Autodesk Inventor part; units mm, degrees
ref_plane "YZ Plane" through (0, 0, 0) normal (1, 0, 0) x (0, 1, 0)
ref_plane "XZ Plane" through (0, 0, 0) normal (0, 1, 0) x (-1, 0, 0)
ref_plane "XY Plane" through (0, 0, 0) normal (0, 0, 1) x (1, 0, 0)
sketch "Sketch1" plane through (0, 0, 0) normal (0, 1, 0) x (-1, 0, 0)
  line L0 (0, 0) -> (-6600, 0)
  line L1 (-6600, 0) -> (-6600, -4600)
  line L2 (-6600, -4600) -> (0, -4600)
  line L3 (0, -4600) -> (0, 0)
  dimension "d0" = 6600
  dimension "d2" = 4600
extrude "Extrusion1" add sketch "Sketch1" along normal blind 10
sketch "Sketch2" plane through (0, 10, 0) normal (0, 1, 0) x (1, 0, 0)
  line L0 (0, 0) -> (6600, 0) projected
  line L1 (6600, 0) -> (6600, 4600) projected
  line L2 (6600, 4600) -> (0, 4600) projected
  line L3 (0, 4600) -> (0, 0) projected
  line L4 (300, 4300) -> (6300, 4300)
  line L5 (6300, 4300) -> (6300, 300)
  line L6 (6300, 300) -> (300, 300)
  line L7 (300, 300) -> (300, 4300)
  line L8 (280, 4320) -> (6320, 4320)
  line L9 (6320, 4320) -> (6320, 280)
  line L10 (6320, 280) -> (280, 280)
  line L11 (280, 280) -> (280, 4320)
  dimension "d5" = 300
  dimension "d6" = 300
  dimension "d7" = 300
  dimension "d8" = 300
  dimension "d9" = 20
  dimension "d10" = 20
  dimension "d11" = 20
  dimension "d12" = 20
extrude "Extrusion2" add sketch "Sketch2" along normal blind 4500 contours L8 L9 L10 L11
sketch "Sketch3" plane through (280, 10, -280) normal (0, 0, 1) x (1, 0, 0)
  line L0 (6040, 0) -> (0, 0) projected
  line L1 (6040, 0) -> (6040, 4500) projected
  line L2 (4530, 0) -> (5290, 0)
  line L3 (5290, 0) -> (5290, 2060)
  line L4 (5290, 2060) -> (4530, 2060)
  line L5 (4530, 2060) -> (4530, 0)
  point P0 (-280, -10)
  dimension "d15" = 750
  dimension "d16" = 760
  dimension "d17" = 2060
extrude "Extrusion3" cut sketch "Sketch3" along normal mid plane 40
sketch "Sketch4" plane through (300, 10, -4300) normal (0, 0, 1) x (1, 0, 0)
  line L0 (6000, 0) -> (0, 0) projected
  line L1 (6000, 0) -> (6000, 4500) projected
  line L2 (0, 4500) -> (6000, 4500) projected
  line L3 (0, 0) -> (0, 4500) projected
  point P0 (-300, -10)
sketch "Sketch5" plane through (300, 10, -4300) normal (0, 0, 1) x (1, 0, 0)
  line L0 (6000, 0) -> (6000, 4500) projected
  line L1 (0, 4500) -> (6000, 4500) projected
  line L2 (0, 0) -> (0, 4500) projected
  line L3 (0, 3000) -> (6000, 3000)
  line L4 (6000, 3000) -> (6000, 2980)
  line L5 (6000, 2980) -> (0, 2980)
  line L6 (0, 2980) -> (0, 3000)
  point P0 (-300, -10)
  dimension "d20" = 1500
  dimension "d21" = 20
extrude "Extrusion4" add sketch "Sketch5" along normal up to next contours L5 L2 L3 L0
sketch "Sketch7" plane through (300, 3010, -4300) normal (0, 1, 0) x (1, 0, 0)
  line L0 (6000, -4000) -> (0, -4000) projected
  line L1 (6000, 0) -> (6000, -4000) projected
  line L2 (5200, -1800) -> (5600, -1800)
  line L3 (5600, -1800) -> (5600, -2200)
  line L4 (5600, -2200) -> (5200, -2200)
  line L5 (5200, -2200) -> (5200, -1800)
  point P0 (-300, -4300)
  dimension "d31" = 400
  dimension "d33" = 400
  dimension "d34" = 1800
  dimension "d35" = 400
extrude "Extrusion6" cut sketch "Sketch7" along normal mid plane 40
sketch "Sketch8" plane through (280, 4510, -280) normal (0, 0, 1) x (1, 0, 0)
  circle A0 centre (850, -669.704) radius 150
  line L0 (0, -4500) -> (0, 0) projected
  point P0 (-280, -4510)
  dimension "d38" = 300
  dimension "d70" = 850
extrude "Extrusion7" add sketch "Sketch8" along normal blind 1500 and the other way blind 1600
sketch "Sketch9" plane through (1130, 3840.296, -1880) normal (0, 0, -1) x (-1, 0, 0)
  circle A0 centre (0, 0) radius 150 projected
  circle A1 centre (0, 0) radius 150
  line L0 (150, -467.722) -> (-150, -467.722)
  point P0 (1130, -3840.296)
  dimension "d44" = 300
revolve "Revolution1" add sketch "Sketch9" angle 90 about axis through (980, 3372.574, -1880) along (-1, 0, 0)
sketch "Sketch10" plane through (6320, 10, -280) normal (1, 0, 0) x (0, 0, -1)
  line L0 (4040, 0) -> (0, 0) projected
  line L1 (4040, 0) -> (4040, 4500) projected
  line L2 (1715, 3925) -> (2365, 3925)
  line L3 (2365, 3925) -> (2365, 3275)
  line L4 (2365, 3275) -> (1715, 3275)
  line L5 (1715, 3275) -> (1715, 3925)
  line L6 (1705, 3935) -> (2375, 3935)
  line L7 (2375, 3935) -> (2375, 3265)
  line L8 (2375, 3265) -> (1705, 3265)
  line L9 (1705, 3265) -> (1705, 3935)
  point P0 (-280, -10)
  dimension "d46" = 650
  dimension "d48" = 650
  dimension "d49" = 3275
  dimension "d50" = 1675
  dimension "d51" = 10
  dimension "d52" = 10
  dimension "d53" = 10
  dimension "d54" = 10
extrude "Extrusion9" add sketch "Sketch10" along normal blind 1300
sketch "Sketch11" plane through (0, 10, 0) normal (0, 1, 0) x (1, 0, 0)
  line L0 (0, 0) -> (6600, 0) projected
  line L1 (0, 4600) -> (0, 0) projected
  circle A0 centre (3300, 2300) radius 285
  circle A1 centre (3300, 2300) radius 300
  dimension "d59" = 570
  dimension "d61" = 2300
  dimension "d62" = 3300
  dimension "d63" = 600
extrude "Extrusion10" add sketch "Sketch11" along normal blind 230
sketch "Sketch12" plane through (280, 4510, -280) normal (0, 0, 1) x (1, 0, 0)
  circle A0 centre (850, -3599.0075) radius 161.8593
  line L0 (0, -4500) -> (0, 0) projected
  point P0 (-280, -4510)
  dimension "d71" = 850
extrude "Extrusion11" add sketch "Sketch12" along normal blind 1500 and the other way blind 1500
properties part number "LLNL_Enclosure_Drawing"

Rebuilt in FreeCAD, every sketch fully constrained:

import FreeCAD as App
import Part
import Sketcher

V = App.Vector
Q = App.Units.Quantity


def add_polygon(sketch, points):
    """Adds a closed chain of lines whose ends are joined by coincident constraints."""
    first, n = sketch.GeometryCount, len(points)
    for a, b in zip(points, points[1:] + points[:1]):
        sketch.addGeometry(Part.LineSegment(App.Vector(*a, 0), App.Vector(*b, 0)), False)
    for i in range(n):
        sketch.addConstraint(Sketcher.Constraint("Coincident", first + i, 2, first + (i + 1) % n, 1))

doc = App.newDocument("Part")
body = doc.addObject("PartDesign::Body", "Body")

# Sketch on XZ plane
sketch1 = body.newObject("Sketcher::SketchObject", "Sketch")
sketch1.AttachmentSupport = (doc.getObject("XZ_Plane"), [""])
sketch1.MapMode = "FlatFace"
add_polygon(sketch1, [(0, -4600), (0, 0), (6600, 0), (6600, -4600)])  # lines 0-3
sketch1.addConstraint([
    Sketcher.Constraint("Vertical", 0),
    Sketcher.Constraint("Horizontal", 1),
    Sketcher.Constraint("Vertical", 2),
    Sketcher.Constraint("Horizontal", 3),
    Sketcher.Constraint("Coincident", 0, 2, -1, 1),
    Sketcher.Constraint("DistanceX", 1, 1, 1, 2, Q("6600 mm")),
    Sketcher.Constraint("DistanceY", 0, 1, 0, 2, Q("4600 mm")),
])
pad1 = body.newObject("PartDesign::Pad", "Pad")
pad1.Profile = sketch1
pad1.Length = 10
pad1.Reversed = True

# Sketch on XZ plane
sketch2 = body.newObject("Sketcher::SketchObject", "Sketch001")
sketch2.AttachmentSupport = (doc.getObject("XZ_Plane"), [""])
sketch2.MapMode = "FlatFace"
sketch2.AttachmentOffset = App.Placement(V(0, 0, -10), App.Rotation())
add_polygon(sketch2, [(6320, -4320), (280, -4320), (280, -280), (6320, -280)])  # lines 0-3
add_polygon(sketch2, [(300, -300), (300, -4300), (6300, -4300), (6300, -300)])  # lines 4-7
sketch2.addConstraint([
    Sketcher.Constraint("Horizontal", 0),
    Sketcher.Constraint("Vertical", 1),
    Sketcher.Constraint("Horizontal", 2),
    Sketcher.Constraint("Vertical", 3),
    Sketcher.Constraint("Vertical", 4),
    Sketcher.Constraint("Horizontal", 5),
    Sketcher.Constraint("Vertical", 6),
    Sketcher.Constraint("Horizontal", 7),
    Sketcher.Constraint("DistanceX", -1, 1, 4, 2, Q("300 mm")),
    Sketcher.Constraint("DistanceY", 6, 2, -1, 1, Q("300 mm")),
    Sketcher.Constraint("DistanceX", 0, 2, 4, 2, Q("20 mm")),
    Sketcher.Constraint("DistanceY", 0, 2, 4, 2, Q("20 mm")),
    Sketcher.Constraint("DistanceX", 5, 2, 3, 2, Q("20 mm")),
    Sketcher.Constraint("DistanceY", 6, 2, 2, 2, Q("20 mm")),
    Sketcher.Constraint("DistanceX", 0, 2, 0, 1, Q("6040 mm")),
    Sketcher.Constraint("DistanceY", 1, 1, 1, 2, Q("4040 mm")),
])
pad2 = body.newObject("PartDesign::Pad", "Pad001")
pad2.Profile = sketch2
pad2.Length = 4500
pad2.Reversed = True

# Sketch on XY plane
sketch3 = body.newObject("Sketcher::SketchObject", "Sketch002")
sketch3.AttachmentSupport = (doc.getObject("XY_Plane"), [""])
sketch3.MapMode = "FlatFace"
sketch3.AttachmentOffset = App.Placement(V(0, 0, -280), App.Rotation())
add_polygon(sketch3, [(4810, 10), (5570, 10), (5570, 2070), (4810, 2070)])  # lines 0-3
sketch3.addConstraint([
    Sketcher.Constraint("Horizontal", 0),
    Sketcher.Constraint("Vertical", 1),
    Sketcher.Constraint("Horizontal", 2),
    Sketcher.Constraint("Vertical", 3),
    Sketcher.Constraint("DistanceX", 0, 1, 0, 2, Q("760 mm")),
    Sketcher.Constraint("DistanceY", 1, 1, 1, 2, Q("2060 mm")),
    Sketcher.Constraint("DistanceX", -1, 1, 0, 2, Q("5570 mm")),
    Sketcher.Constraint("DistanceY", -1, 1, 0, 2, Q("10 mm")),
])
pocket1 = body.newObject("PartDesign::Pocket", "Pocket")
pocket1.Profile = sketch3
pocket1.Length = 40
pocket1.Midplane = True

# Sketch on XY plane
sketch4 = body.newObject("Sketcher::SketchObject", "Sketch003")
sketch4.AttachmentSupport = (doc.getObject("XY_Plane"), [""])
sketch4.MapMode = "FlatFace"
sketch4.AttachmentOffset = App.Placement(V(0, 0, -4300), App.Rotation())
add_polygon(sketch4, [(300, 2990), (6300, 2990), (6300, 3010), (300, 3010)])  # lines 0-3
sketch4.addConstraint([
    Sketcher.Constraint("Horizontal", 0),
    Sketcher.Constraint("Vertical", 1),
    Sketcher.Constraint("Horizontal", 2),
    Sketcher.Constraint("Vertical", 3),
    Sketcher.Constraint("DistanceY", 1, 1, 1, 2, Q("20 mm")),
    Sketcher.Constraint("DistanceX", 0, 1, 0, 2, Q("6000 mm")),
    Sketcher.Constraint("DistanceX", -1, 1, 0, 2, Q("6300 mm")),
    Sketcher.Constraint("DistanceY", -1, 1, 0, 2, Q("2990 mm")),
])
pad3 = body.newObject("PartDesign::Pad", "Pad002")
pad3.Profile = sketch4
pad3.Type = "UpToFirst"

# Sketch on XZ plane
sketch5 = body.newObject("Sketcher::SketchObject", "Sketch004")
sketch5.AttachmentSupport = (doc.getObject("XZ_Plane"), [""])
sketch5.MapMode = "FlatFace"
sketch5.AttachmentOffset = App.Placement(V(0, 0, -3010), App.Rotation())
add_polygon(sketch5, [(5900, -2500), (5500, -2500), (5500, -2100), (5900, -2100)])  # lines 0-3
sketch5.addConstraint([
    Sketcher.Constraint("Horizontal", 0),
    Sketcher.Constraint("Vertical", 1),
    Sketcher.Constraint("Horizontal", 2),
    Sketcher.Constraint("Vertical", 3),
    Sketcher.Constraint("Equal", 2, 1),
    Sketcher.Constraint("DistanceX", 0, 2, 0, 1, Q("400 mm")),
    Sketcher.Constraint("DistanceX", -1, 1, 0, 2, Q("5500 mm")),
    Sketcher.Constraint("DistanceY", 0, 2, -1, 1, Q("2500 mm")),
])
pocket2 = body.newObject("PartDesign::Pocket", "Pocket001")
pocket2.Profile = sketch5
pocket2.Length = 40
pocket2.Midplane = True

# Sketch on XY plane
sketch6 = body.newObject("Sketcher::SketchObject", "Sketch005")
sketch6.AttachmentSupport = (doc.getObject("XY_Plane"), [""])
sketch6.MapMode = "FlatFace"
sketch6.AttachmentOffset = App.Placement(V(0, 0, -280), App.Rotation())
sketch6.addGeometry(Part.Circle(V(1130, 3840.296, 0), V(0, 0, 1), 150), False)
sketch6.addConstraint([
    Sketcher.Constraint("Diameter", 0, Q("300 mm")),
    Sketcher.Constraint("DistanceX", -1, 1, 0, 3, Q("1130 mm")),
    Sketcher.Constraint("DistanceY", -1, 1, 0, 3, Q("3840.296 mm")),
])
pad4 = body.newObject("PartDesign::Pad", "Pad003")
pad4.Profile = sketch6
pad4.Type = "TwoLengths"
pad4.Length = 1500
pad4.Length2 = 1600

# Sketch on XY plane
sketch7 = body.newObject("Sketcher::SketchObject", "Sketch006")
sketch7.AttachmentSupport = (doc.getObject("XY_Plane"), [""])
sketch7.MapMode = "FlatFace"
sketch7.AttachmentOffset = App.Placement(V(0, 0, -1880), App.Rotation())
sketch7.addGeometry(Part.Circle(V(1130, 3840.296, 0), V(0, 0, 1), 150), False)
sketch7.addGeometry(Part.LineSegment(V(1130, 3372.574, 0), V(1120, 3372.574, 0)), True)  # axis
sketch7.addConstraint([
    Sketcher.Constraint("Horizontal", 1),
    Sketcher.Constraint("Vertical", 0, 3, 1, 1),
    Sketcher.Constraint("Diameter", 0, Q("300 mm")),
    Sketcher.Constraint("DistanceX", 1, 2, 1, 1, Q("10 mm")),
    Sketcher.Constraint("DistanceX", -1, 1, 0, 3, Q("1130 mm")),
    Sketcher.Constraint("DistanceY", -1, 1, 0, 3, Q("3840.296 mm")),
    Sketcher.Constraint("DistanceY", -1, 1, 1, 1, Q("3372.574 mm")),
])
revolution = body.newObject("PartDesign::Revolution", "Revolution")
revolution.Profile = sketch7
revolution.ReferenceAxis = (sketch7, ["Axis0"])
revolution.Angle = 90

# Sketch on YZ plane
sketch8 = body.newObject("Sketcher::SketchObject", "Sketch007")
sketch8.AttachmentSupport = (doc.getObject("YZ_Plane"), [""])
sketch8.MapMode = "FlatFace"
sketch8.AttachmentOffset = App.Placement(V(0, 0, 6320), App.Rotation())
add_polygon(sketch8, [(3945, -2655), (3945, -1985), (3275, -1985), (3275, -2655)])  # lines 0-3
add_polygon(sketch8, [(3285, -1995), (3935, -1995), (3935, -2645), (3285, -2645)])  # lines 4-7
sketch8.addConstraint([
    Sketcher.Constraint("Vertical", 0),
    Sketcher.Constraint("Horizontal", 1),
    Sketcher.Constraint("Vertical", 2),
    Sketcher.Constraint("Horizontal", 3),
    Sketcher.Constraint("Horizontal", 4),
    Sketcher.Constraint("Vertical", 5),
    Sketcher.Constraint("Horizontal", 6),
    Sketcher.Constraint("Vertical", 7),
    Sketcher.Constraint("Equal", 3, 0),
    Sketcher.Constraint("Equal", 6, 5),
    Sketcher.Constraint("DistanceX", 4, 1, 4, 2, Q("650 mm")),
    Sketcher.Constraint("DistanceX", -1, 1, 1, 2, Q("3275 mm")),
    Sketcher.Constraint("DistanceX", 4, 2, 0, 2, Q("10 mm")),
    Sketcher.Constraint("DistanceY", 4, 2, 0, 2, Q("10 mm")),
    Sketcher.Constraint("DistanceY", 3, 2, 5, 2, Q("10 mm")),
    Sketcher.Constraint("DistanceY", 0, 2, -1, 1, Q("1985 mm")),
])
pad5 = body.newObject("PartDesign::Pad", "Pad004")
pad5.Profile = sketch8
pad5.Length = 1300

# Sketch on XZ plane
sketch9 = body.newObject("Sketcher::SketchObject", "Sketch008")
sketch9.AttachmentSupport = (doc.getObject("XZ_Plane"), [""])
sketch9.MapMode = "FlatFace"
sketch9.AttachmentOffset = App.Placement(V(0, 0, -10), App.Rotation())
sketch9.addGeometry([
    Part.Circle(V(3300, -2300, 0), V(0, 0, 1), 300),
    Part.Circle(V(3300, -2300, 0), V(0, 0, 1), 285),
], False)
sketch9.addConstraint([
    Sketcher.Constraint("Coincident", 1, 3, 0, 3),
    Sketcher.Constraint("Diameter", 0, Q("600 mm")),
    Sketcher.Constraint("Diameter", 1, Q("570 mm")),
    Sketcher.Constraint("DistanceX", -1, 1, 0, 3, Q("3300 mm")),
    Sketcher.Constraint("DistanceY", 0, 3, -1, 1, Q("2300 mm")),
])
pad6 = body.newObject("PartDesign::Pad", "Pad005")
pad6.Profile = sketch9
pad6.Length = 230
pad6.Reversed = True

# Sketch on XY plane
sketch10 = body.newObject("Sketcher::SketchObject", "Sketch009")
sketch10.AttachmentSupport = (doc.getObject("XY_Plane"), [""])
sketch10.MapMode = "FlatFace"
sketch10.AttachmentOffset = App.Placement(V(0, 0, -280), App.Rotation())
sketch10.addGeometry(Part.Circle(V(1130, 910.9925, 0), V(0, 0, 1), 161.8593), False)
sketch10.addConstraint([
    Sketcher.Constraint("DistanceX", -1, 1, 0, 3, Q("1130 mm")),
    Sketcher.Constraint("Diameter", 0, Q("323.7186 mm")),
    Sketcher.Constraint("DistanceY", -1, 1, 0, 3, Q("910.9925 mm")),
])
pad7 = body.newObject("PartDesign::Pad", "Pad006")
pad7.Profile = sketch10
pad7.Type = "TwoLengths"
pad7.Length = 1500
pad7.Length2 = 1500

doc.recompute()
